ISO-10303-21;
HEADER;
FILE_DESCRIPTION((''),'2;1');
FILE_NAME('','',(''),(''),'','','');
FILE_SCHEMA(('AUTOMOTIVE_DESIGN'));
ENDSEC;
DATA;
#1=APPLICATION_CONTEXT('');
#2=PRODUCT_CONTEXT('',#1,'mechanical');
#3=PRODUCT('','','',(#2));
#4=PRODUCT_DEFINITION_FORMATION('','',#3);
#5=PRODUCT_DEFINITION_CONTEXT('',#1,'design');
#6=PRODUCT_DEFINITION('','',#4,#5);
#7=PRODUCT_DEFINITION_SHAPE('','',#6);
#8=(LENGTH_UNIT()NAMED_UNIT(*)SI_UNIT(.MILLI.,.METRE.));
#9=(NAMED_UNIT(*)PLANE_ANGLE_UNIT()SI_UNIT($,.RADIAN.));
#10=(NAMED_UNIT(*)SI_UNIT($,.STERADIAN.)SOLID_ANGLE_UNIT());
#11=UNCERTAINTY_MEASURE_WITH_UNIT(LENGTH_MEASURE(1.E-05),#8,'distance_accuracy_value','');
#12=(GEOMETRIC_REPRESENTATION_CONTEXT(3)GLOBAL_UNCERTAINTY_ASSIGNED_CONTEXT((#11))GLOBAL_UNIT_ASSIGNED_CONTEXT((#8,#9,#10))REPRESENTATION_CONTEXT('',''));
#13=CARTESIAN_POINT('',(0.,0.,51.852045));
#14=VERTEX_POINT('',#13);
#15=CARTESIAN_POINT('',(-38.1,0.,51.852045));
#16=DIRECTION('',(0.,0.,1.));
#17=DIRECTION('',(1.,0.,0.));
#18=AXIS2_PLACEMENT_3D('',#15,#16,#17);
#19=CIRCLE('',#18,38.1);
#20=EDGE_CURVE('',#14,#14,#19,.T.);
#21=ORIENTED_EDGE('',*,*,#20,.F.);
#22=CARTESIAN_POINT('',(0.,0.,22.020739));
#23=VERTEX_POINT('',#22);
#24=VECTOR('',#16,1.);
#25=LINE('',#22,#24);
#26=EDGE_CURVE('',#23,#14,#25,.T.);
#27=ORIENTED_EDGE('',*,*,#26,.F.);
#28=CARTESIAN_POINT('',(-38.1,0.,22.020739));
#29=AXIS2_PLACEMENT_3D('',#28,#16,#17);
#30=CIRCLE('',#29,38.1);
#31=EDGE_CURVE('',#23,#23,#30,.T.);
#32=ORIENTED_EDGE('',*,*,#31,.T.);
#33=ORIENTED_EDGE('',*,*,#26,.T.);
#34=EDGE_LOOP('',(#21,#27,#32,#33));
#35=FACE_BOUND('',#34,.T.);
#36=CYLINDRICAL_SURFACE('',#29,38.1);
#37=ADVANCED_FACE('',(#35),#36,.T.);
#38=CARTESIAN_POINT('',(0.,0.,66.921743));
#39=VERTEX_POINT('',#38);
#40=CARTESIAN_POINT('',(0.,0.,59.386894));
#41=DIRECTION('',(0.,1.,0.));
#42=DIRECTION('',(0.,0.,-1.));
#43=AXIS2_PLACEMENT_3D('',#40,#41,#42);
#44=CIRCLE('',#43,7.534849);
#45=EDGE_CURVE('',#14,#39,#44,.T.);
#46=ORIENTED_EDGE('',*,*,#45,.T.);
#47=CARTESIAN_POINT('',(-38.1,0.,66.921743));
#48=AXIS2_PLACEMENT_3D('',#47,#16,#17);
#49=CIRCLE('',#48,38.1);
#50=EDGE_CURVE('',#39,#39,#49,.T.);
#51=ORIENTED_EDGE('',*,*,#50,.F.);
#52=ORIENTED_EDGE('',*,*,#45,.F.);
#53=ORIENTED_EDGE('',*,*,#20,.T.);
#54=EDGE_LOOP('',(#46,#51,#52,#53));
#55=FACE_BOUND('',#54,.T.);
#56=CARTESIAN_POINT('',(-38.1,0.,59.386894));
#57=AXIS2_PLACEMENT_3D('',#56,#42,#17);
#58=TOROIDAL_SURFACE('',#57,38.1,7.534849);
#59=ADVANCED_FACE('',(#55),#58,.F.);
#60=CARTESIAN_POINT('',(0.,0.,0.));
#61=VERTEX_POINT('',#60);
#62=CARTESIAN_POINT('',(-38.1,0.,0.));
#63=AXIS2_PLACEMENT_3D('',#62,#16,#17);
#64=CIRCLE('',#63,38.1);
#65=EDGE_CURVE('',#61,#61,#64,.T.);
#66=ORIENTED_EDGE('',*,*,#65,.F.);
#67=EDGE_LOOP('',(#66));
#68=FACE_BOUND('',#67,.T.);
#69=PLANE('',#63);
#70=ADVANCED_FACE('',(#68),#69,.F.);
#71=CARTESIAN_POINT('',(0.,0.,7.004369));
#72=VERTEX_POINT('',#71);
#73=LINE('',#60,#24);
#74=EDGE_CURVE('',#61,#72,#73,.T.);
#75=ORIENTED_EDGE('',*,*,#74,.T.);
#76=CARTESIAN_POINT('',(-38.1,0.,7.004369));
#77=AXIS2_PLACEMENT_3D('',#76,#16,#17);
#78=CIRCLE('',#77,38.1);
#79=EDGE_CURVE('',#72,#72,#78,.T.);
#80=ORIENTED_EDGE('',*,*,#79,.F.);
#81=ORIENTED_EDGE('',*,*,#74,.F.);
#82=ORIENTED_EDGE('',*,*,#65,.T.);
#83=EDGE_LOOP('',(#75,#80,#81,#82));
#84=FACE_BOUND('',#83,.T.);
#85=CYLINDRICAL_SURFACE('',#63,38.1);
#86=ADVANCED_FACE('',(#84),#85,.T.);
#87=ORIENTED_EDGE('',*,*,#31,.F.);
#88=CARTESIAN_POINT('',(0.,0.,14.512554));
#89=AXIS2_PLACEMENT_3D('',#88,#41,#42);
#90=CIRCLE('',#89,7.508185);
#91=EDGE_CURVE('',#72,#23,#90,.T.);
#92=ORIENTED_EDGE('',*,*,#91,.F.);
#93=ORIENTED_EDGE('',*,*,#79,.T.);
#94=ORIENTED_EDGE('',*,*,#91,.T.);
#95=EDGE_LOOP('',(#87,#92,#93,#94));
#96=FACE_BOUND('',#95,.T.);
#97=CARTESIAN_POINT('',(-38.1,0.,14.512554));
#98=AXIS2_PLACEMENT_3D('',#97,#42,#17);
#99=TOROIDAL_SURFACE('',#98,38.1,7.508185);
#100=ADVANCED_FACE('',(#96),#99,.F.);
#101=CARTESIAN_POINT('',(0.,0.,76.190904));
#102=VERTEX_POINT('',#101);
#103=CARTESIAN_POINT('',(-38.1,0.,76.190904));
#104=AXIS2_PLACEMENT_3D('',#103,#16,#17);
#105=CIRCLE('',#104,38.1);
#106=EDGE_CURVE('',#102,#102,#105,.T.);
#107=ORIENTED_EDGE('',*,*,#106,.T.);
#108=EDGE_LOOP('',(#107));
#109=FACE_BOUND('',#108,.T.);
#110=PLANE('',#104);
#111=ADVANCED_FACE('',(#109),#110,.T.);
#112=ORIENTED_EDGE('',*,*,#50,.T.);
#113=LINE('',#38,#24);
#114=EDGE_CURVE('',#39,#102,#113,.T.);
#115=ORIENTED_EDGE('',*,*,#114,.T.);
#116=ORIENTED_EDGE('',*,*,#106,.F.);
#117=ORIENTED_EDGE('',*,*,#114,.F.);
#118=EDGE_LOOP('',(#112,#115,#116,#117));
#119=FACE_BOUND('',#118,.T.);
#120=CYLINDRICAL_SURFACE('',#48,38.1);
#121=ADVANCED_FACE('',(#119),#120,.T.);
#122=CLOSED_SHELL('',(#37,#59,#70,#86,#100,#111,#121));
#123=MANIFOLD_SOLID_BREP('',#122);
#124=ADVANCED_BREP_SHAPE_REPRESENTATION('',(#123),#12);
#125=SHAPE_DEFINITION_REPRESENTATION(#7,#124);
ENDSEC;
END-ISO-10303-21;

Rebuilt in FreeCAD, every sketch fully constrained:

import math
import FreeCAD as App
import Part
import Sketcher
Q = App.Units.Quantity

doc = App.newDocument("Part")
body = doc.addObject("PartDesign::Body", "Body")

# Sketch on XZ plane
sketch1 = doc.addObject("Sketcher::SketchObject", "Sketch")
body.addObject(sketch1)
sketch1.AttachmentSupport = (doc.XZ_Plane, [""])
sketch1.MapMode = "FlatFace"
sketch1.addGeometry([
    Part.LineSegment(App.Vector(-38, 0, 0), App.Vector(0, 0, 0)),  # 0
    Part.LineSegment(App.Vector(0, 0, 0), App.Vector(0, 7, 0)),  # 1
    Part.ArcOfCircle(Part.Circle(App.Vector(0, 15, 0), App.Vector(0, 0, 1), 8), math.radians(90), math.radians(270)),  # 2
    Part.LineSegment(App.Vector(0, 22, 0), App.Vector(0, 52, 0)),  # 3
    Part.ArcOfCircle(Part.Circle(App.Vector(0, 59, 0), App.Vector(0, 0, 1), 8), math.radians(90), math.radians(270)),  # 4
    Part.LineSegment(App.Vector(0, 67, 0), App.Vector(0, 76, 0)),  # 5
    Part.LineSegment(App.Vector(0, 76, 0), App.Vector(-38, 76, 0)),  # 6
    Part.LineSegment(App.Vector(-38, 76, 0), App.Vector(-38, 0, 0)),  # 7
], False)
sketch1.addGeometry(Part.LineSegment(App.Vector(-38, 0, 0), App.Vector(-38, 76, 0)), True)  # axis
sketch1.addConstraint([
    Sketcher.Constraint("Coincident", 0, 2, 1, 1),
    Sketcher.Constraint("Coincident", 1, 2, 2, 2),
    Sketcher.Constraint("Coincident", 2, 1, 3, 1),
    Sketcher.Constraint("Coincident", 3, 2, 4, 2),
    Sketcher.Constraint("Coincident", 4, 1, 5, 1),
    Sketcher.Constraint("Coincident", 5, 2, 6, 1),
    Sketcher.Constraint("Coincident", 6, 2, 7, 1),
    Sketcher.Constraint("Coincident", 7, 2, 0, 1),
    Sketcher.Constraint("Horizontal", 0),
    Sketcher.Constraint("Vertical", 1),
    Sketcher.Constraint("Vertical", 3),
    Sketcher.Constraint("Vertical", 5),
    Sketcher.Constraint("Horizontal", 6),
    Sketcher.Constraint("Vertical", 7),
    Sketcher.Constraint("Vertical", 8),
    Sketcher.Constraint("Coincident", 0, 2, -1, 1),
    Sketcher.Constraint("Coincident", 8, 1, 7, 2),
    Sketcher.Constraint("PointOnObject", 2, 3, -2),
    Sketcher.Constraint("PointOnObject", 4, 3, -2),
    Sketcher.Constraint("PointOnObject", 2, 1, -2),
    Sketcher.Constraint("PointOnObject", 4, 1, -2),
    Sketcher.Constraint("Horizontal", 5, 2, 8, 2),
    Sketcher.Constraint("DistanceX", 0, 1, 0, 2, Q("1.5 in")),
    Sketcher.Constraint("Radius", 4, Q("7.534849 mm")),
    Sketcher.Constraint("Radius", 2, Q("7.508185 mm")),
    Sketcher.Constraint("DistanceY", 1, 1, 1, 2, Q("7.004369 mm")),
    Sketcher.Constraint("DistanceY", 5, 1, 5, 2, Q("9.269161 mm")),
    Sketcher.Constraint("DistanceY", 3, 1, 3, 2, Q("29.831306 mm")),
])
revolution = doc.addObject("PartDesign::Revolution", "Revolution")
body.addObject(revolution)
revolution.Profile = sketch1
revolution.ReferenceAxis = (sketch1, ["Axis0"])
revolution.Angle = 360

doc.recompute()
